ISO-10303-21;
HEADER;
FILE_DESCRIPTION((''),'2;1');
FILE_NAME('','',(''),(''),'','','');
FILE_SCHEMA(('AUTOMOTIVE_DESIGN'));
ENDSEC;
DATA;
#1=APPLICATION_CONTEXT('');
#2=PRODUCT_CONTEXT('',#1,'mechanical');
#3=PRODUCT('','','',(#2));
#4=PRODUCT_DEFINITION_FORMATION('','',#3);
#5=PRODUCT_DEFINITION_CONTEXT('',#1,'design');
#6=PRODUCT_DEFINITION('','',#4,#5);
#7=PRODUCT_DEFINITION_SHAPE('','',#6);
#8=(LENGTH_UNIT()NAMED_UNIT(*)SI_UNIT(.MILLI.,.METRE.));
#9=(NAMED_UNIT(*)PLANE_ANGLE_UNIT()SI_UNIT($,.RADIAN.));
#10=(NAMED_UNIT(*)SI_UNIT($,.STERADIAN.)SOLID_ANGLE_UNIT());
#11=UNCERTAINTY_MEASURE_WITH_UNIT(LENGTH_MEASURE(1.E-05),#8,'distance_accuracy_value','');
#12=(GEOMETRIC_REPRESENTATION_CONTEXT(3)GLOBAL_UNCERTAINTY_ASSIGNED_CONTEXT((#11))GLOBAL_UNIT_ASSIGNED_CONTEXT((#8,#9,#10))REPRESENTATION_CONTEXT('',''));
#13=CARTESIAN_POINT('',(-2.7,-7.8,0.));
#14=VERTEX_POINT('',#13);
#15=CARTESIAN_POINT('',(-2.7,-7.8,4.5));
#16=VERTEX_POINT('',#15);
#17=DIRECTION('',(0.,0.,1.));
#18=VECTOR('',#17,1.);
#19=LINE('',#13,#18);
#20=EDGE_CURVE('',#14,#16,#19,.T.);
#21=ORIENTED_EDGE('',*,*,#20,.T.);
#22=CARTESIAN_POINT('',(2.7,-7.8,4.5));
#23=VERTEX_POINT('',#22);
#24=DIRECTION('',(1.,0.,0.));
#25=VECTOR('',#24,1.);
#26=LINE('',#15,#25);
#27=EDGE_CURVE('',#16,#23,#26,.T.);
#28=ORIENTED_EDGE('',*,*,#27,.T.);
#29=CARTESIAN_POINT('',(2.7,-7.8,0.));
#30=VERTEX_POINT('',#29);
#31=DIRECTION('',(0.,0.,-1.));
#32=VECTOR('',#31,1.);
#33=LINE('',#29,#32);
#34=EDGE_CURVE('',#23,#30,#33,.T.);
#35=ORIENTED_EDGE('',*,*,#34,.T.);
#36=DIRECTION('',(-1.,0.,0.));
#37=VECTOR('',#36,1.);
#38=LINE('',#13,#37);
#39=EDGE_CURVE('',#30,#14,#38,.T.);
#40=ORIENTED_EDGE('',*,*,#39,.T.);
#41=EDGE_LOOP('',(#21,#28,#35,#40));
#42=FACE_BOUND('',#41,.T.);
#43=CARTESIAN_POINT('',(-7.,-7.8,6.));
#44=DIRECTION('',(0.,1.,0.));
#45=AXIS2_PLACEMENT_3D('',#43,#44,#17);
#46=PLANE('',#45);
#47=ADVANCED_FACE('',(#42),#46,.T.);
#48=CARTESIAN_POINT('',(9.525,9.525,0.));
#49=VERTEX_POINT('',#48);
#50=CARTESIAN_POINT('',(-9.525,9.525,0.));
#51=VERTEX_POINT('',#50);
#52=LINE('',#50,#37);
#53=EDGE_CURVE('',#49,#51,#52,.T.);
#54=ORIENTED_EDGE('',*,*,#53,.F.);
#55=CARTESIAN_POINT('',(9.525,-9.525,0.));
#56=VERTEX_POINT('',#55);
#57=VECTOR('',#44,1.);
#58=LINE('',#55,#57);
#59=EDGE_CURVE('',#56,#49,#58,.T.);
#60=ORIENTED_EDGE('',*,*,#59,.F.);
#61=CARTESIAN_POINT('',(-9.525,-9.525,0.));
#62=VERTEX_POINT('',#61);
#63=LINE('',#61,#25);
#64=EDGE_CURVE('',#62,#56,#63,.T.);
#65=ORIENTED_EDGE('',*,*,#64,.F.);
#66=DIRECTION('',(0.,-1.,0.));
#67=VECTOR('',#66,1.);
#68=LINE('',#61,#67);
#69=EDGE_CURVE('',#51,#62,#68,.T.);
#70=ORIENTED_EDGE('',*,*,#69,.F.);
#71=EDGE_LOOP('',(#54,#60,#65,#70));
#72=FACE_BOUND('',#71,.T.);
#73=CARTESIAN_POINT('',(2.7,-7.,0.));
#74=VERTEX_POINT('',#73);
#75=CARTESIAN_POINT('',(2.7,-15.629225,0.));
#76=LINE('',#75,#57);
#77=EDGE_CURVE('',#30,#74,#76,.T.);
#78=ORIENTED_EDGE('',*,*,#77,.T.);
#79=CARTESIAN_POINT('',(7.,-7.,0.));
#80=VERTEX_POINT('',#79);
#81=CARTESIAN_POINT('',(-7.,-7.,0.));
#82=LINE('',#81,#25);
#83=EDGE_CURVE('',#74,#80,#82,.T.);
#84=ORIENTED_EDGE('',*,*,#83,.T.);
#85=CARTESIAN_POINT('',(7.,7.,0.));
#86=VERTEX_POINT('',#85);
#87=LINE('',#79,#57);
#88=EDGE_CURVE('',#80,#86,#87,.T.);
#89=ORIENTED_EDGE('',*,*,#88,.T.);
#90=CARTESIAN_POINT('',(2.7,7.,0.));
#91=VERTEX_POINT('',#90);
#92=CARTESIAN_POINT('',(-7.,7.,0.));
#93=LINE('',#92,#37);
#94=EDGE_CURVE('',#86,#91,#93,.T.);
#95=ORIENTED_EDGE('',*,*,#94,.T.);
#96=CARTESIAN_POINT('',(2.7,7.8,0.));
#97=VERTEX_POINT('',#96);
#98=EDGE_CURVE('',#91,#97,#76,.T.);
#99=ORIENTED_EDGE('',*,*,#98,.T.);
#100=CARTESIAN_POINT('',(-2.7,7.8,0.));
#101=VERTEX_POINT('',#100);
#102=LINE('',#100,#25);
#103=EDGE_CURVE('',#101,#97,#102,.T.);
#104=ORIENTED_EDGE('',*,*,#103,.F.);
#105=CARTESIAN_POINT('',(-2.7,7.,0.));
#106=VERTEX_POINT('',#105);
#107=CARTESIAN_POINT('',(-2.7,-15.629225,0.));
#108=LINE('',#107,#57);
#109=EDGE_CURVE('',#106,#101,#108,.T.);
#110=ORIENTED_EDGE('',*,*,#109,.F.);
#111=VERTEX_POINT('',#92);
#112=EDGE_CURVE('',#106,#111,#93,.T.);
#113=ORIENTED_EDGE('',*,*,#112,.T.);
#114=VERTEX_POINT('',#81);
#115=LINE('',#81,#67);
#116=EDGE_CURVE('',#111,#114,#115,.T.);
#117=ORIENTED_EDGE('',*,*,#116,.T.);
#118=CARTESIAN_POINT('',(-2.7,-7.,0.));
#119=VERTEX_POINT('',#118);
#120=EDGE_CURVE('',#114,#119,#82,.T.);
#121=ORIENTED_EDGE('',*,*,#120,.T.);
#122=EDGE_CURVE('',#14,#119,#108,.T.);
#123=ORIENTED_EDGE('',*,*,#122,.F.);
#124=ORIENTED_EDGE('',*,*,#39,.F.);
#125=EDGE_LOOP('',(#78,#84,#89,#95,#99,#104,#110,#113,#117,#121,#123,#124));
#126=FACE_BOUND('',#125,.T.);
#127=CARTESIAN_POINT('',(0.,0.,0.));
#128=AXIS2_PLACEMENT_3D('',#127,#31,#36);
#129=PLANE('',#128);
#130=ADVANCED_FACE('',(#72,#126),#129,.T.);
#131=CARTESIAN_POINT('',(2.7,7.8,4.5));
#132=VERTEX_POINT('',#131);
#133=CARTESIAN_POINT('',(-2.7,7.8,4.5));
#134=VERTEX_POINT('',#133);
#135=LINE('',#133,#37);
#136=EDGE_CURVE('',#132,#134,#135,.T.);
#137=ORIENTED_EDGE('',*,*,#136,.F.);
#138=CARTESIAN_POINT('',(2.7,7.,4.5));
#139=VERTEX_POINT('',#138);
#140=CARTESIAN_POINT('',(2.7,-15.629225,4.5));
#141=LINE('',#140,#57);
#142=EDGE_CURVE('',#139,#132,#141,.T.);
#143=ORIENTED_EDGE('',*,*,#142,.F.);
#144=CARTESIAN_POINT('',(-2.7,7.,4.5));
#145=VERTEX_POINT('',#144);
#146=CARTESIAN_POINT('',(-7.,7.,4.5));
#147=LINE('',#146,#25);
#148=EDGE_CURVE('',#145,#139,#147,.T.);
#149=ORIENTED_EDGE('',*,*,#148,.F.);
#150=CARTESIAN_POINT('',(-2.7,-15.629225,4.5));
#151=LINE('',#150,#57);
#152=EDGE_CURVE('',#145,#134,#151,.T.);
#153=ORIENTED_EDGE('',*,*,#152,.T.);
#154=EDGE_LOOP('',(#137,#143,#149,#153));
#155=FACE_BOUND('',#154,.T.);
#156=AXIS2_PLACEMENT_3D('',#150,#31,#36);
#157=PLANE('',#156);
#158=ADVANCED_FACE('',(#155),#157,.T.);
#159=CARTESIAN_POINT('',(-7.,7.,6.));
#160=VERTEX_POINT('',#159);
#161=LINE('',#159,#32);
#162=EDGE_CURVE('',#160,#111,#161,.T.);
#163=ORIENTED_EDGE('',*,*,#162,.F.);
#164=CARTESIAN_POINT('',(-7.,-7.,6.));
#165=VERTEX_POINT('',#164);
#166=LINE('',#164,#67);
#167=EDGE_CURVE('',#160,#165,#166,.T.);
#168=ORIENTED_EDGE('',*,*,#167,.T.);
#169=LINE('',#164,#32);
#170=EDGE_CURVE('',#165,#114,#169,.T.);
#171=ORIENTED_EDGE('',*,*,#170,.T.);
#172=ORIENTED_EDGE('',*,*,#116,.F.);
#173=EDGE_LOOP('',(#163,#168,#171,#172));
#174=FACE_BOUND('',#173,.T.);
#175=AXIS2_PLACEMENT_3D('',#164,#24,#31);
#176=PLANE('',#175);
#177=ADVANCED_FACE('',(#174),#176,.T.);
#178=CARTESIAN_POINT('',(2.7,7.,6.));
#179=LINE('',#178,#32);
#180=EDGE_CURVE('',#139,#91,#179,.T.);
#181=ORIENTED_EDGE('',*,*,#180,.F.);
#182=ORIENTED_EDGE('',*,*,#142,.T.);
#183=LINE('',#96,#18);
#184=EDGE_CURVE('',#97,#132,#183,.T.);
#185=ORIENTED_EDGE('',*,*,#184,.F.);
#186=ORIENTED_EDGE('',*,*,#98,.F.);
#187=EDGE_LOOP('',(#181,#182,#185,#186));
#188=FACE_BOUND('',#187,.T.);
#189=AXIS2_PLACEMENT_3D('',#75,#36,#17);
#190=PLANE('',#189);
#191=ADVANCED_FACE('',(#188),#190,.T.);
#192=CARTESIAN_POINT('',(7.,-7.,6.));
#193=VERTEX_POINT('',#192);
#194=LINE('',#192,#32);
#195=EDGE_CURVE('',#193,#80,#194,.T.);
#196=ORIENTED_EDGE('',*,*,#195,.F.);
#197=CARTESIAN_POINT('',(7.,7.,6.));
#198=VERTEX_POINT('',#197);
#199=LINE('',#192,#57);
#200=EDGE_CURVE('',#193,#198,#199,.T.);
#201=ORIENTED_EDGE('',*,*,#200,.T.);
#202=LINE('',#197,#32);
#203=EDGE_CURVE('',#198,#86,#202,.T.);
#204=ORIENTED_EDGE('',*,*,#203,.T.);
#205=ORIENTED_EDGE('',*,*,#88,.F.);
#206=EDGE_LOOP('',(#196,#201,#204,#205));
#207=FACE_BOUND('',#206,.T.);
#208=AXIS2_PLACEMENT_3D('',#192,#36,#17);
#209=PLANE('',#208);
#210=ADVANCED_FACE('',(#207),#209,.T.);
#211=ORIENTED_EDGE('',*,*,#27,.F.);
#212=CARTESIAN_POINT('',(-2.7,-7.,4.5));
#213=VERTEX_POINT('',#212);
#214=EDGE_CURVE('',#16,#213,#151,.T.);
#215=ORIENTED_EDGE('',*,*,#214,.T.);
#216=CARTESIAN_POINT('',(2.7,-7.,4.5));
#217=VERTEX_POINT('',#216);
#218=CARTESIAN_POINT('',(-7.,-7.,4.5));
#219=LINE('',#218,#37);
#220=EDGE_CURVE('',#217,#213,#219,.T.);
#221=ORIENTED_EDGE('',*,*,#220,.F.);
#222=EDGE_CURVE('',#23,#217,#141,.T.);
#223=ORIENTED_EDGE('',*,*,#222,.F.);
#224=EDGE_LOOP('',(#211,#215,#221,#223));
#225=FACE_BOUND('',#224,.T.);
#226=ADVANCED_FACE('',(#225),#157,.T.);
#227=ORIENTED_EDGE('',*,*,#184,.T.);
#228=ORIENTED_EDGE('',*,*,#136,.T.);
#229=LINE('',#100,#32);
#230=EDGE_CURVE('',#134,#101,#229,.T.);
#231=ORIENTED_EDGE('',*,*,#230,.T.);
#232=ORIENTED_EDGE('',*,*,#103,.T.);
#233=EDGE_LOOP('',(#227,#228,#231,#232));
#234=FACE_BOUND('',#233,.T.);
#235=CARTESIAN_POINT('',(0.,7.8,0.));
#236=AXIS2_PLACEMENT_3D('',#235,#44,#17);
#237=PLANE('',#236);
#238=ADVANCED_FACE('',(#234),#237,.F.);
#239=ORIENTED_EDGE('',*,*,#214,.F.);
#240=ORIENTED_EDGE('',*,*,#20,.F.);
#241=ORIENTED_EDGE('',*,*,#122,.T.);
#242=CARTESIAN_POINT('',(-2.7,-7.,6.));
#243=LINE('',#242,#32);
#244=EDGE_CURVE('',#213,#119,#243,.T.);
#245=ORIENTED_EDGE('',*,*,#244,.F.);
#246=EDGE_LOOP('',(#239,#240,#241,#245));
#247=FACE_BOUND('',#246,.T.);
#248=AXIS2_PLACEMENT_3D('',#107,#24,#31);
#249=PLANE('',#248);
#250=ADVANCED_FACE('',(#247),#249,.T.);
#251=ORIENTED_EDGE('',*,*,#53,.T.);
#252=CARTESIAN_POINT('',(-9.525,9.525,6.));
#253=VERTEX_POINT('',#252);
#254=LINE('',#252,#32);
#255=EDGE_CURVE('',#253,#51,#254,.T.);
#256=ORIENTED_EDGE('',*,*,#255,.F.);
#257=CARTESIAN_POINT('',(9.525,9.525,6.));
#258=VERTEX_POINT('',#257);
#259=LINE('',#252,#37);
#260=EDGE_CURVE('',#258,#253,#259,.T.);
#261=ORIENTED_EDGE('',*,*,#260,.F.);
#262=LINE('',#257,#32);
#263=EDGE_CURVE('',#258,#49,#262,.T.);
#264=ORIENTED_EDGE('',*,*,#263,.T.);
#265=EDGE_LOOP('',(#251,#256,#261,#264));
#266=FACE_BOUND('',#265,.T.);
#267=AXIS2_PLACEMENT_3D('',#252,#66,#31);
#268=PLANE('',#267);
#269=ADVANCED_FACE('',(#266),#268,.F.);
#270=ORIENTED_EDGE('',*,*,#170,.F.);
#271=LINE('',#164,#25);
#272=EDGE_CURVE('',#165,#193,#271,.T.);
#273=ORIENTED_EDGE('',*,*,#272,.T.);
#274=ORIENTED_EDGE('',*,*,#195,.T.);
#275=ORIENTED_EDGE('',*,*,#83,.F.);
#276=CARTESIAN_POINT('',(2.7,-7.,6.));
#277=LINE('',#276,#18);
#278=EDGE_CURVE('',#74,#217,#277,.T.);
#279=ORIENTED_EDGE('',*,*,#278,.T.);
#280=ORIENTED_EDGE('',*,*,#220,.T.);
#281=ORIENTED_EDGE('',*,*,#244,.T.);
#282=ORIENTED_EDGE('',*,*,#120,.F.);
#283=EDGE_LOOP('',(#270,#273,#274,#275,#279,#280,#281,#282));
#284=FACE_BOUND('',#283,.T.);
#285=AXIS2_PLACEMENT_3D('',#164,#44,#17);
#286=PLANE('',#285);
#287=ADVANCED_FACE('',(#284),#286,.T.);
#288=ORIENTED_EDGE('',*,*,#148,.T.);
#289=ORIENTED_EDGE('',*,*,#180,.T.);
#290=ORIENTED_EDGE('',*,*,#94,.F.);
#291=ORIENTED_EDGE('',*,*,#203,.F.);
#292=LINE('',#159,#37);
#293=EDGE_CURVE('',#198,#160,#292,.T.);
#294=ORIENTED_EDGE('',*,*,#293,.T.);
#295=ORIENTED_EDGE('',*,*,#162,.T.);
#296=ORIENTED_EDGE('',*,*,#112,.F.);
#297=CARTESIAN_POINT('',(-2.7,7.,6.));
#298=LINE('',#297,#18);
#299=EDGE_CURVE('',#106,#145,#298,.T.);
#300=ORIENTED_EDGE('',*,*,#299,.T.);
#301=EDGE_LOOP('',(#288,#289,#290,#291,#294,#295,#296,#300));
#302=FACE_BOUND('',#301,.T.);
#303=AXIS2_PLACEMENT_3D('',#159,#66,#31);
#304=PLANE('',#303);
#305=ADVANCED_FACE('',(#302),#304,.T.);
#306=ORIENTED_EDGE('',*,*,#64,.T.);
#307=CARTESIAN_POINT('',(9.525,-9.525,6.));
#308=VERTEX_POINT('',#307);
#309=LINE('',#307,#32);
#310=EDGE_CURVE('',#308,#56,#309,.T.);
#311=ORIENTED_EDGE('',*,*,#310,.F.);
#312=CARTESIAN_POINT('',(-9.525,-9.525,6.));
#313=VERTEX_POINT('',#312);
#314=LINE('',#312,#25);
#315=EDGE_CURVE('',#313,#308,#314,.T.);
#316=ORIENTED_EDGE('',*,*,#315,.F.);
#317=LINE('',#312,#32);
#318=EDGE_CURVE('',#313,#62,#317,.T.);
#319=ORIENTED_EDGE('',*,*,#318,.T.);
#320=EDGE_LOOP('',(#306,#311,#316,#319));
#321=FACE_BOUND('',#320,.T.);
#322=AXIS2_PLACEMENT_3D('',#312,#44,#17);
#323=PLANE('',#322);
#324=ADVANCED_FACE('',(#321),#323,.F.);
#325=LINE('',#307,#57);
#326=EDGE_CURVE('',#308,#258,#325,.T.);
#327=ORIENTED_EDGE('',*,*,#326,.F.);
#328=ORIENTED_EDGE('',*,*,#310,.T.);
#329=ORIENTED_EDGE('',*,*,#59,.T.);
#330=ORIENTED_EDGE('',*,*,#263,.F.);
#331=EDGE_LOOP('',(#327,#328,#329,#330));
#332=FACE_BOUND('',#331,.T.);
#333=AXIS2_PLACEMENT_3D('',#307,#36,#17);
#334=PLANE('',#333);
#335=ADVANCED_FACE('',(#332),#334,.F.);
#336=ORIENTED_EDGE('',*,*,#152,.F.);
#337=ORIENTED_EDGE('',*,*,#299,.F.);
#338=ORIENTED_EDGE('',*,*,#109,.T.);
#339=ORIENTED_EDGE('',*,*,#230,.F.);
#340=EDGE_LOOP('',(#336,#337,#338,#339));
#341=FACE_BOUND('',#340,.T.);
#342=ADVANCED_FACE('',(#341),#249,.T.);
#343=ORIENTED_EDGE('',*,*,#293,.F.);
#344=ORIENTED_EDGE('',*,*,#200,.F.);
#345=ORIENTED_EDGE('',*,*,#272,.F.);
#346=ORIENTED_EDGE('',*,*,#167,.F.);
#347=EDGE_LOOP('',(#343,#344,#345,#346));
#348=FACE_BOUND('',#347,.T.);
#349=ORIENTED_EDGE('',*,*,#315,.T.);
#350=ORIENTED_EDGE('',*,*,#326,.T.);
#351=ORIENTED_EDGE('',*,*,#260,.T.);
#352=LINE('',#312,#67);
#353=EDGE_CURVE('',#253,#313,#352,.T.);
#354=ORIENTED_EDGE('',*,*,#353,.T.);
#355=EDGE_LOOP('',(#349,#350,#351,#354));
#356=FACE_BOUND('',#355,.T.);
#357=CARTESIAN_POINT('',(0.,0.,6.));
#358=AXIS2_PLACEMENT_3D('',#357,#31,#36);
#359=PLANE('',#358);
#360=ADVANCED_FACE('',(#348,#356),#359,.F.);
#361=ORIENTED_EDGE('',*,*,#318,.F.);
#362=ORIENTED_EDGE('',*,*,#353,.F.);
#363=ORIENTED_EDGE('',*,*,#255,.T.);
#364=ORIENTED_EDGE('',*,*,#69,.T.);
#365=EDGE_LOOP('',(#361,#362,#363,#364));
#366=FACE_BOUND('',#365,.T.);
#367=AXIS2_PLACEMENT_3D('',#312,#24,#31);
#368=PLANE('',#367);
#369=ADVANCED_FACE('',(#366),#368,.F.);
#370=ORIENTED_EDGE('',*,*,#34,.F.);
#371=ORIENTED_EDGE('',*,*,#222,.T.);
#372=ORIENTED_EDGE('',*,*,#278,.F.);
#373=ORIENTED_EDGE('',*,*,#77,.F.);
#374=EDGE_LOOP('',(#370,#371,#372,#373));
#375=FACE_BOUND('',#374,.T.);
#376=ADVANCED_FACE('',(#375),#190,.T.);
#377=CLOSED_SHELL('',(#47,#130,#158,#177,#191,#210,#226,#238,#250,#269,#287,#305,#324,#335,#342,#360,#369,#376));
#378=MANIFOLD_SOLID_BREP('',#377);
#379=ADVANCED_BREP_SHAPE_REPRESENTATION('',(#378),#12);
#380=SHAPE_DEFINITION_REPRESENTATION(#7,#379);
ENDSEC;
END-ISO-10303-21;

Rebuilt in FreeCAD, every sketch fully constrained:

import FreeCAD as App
import Part
import Sketcher

V = App.Vector


def add_polygon(sketch, points):
    """Adds a closed chain of lines whose ends are joined by coincident constraints."""
    first, n = sketch.GeometryCount, len(points)
    for a, b in zip(points, points[1:] + points[:1]):
        sketch.addGeometry(Part.LineSegment(App.Vector(*a, 0), App.Vector(*b, 0)), False)
    for i in range(n):
        sketch.addConstraint(Sketcher.Constraint("Coincident", first + i, 2, first + (i + 1) % n, 1))

doc = App.newDocument("Part")
body = doc.addObject("PartDesign::Body", "Body")

sketch1 = doc.addObject("Sketcher::SketchObject", "Sketch")
body.addObject(sketch1)
sketch1.AttachmentSupport = (doc.XY_Plane, [""])
sketch1.MapMode = "FlatFace"
add_polygon(sketch1, [(-9.525, 9.525), (-9.525, -9.525), (9.525, -9.525), (9.525, 9.525)])
add_polygon(sketch1, [(7, -7), (-7, -7), (-7, 7), (7, 7)])
sketch1.addConstraint([
    Sketcher.Constraint("Vertical", 0),
    Sketcher.Constraint("Horizontal", 1),
    Sketcher.Constraint("Vertical", 2),
    Sketcher.Constraint("Horizontal", 3),
    Sketcher.Constraint("Horizontal", 4),
    Sketcher.Constraint("Vertical", 5),
    Sketcher.Constraint("Horizontal", 6),
    Sketcher.Constraint("Vertical", 7),
    Sketcher.Constraint("Symmetric", 0, 2, 2, 2, -1, 1),
    Sketcher.Constraint("Symmetric", 4, 2, 6, 2, -1, 1),
    Sketcher.Constraint("Equal", 3, 0),
    Sketcher.Constraint("Equal", 6, 5),
    Sketcher.Constraint("DistanceX", 4, 2, 4, 1, 14.0),
    Sketcher.Constraint("DistanceX", 1, 1, 1, 2, 19.05),
])
pad1 = doc.addObject("PartDesign::Pad", "Pad")
body.addObject(pad1)
pad1.Profile = sketch1
pad1.Length = 6

sketch2 = doc.addObject("Sketcher::SketchObject", "Sketch001")
body.addObject(sketch2)
sketch2.AttachmentSupport = (doc.XZ_Plane, [""])
sketch2.MapMode = "FlatFace"
sketch2.AttachmentOffset = App.Placement(V(0, 0, -7.8), App.Rotation())
add_polygon(sketch2, [(-2.7, 4.5), (-2.7, 0), (2.7, 0), (2.7, 4.5)])
sketch2.addConstraint([
    Sketcher.Constraint("Vertical", 0),
    Sketcher.Constraint("Horizontal", 1),
    Sketcher.Constraint("Vertical", 2),
    Sketcher.Constraint("Horizontal", 3),
    Sketcher.Constraint("Symmetric", 0, 2, 1, 2, -1, 1),
    Sketcher.Constraint("DistanceX", 1, 1, 1, 2, 5.4),
    Sketcher.Constraint("DistanceY", 0, 2, 0, 1, 4.5),
])
pocket1 = doc.addObject("PartDesign::Pocket", "Pocket")
body.addObject(pocket1)
pocket1.Profile = sketch2
pocket1.Length = 15.6
pocket1.Reversed = True

doc.recompute()
